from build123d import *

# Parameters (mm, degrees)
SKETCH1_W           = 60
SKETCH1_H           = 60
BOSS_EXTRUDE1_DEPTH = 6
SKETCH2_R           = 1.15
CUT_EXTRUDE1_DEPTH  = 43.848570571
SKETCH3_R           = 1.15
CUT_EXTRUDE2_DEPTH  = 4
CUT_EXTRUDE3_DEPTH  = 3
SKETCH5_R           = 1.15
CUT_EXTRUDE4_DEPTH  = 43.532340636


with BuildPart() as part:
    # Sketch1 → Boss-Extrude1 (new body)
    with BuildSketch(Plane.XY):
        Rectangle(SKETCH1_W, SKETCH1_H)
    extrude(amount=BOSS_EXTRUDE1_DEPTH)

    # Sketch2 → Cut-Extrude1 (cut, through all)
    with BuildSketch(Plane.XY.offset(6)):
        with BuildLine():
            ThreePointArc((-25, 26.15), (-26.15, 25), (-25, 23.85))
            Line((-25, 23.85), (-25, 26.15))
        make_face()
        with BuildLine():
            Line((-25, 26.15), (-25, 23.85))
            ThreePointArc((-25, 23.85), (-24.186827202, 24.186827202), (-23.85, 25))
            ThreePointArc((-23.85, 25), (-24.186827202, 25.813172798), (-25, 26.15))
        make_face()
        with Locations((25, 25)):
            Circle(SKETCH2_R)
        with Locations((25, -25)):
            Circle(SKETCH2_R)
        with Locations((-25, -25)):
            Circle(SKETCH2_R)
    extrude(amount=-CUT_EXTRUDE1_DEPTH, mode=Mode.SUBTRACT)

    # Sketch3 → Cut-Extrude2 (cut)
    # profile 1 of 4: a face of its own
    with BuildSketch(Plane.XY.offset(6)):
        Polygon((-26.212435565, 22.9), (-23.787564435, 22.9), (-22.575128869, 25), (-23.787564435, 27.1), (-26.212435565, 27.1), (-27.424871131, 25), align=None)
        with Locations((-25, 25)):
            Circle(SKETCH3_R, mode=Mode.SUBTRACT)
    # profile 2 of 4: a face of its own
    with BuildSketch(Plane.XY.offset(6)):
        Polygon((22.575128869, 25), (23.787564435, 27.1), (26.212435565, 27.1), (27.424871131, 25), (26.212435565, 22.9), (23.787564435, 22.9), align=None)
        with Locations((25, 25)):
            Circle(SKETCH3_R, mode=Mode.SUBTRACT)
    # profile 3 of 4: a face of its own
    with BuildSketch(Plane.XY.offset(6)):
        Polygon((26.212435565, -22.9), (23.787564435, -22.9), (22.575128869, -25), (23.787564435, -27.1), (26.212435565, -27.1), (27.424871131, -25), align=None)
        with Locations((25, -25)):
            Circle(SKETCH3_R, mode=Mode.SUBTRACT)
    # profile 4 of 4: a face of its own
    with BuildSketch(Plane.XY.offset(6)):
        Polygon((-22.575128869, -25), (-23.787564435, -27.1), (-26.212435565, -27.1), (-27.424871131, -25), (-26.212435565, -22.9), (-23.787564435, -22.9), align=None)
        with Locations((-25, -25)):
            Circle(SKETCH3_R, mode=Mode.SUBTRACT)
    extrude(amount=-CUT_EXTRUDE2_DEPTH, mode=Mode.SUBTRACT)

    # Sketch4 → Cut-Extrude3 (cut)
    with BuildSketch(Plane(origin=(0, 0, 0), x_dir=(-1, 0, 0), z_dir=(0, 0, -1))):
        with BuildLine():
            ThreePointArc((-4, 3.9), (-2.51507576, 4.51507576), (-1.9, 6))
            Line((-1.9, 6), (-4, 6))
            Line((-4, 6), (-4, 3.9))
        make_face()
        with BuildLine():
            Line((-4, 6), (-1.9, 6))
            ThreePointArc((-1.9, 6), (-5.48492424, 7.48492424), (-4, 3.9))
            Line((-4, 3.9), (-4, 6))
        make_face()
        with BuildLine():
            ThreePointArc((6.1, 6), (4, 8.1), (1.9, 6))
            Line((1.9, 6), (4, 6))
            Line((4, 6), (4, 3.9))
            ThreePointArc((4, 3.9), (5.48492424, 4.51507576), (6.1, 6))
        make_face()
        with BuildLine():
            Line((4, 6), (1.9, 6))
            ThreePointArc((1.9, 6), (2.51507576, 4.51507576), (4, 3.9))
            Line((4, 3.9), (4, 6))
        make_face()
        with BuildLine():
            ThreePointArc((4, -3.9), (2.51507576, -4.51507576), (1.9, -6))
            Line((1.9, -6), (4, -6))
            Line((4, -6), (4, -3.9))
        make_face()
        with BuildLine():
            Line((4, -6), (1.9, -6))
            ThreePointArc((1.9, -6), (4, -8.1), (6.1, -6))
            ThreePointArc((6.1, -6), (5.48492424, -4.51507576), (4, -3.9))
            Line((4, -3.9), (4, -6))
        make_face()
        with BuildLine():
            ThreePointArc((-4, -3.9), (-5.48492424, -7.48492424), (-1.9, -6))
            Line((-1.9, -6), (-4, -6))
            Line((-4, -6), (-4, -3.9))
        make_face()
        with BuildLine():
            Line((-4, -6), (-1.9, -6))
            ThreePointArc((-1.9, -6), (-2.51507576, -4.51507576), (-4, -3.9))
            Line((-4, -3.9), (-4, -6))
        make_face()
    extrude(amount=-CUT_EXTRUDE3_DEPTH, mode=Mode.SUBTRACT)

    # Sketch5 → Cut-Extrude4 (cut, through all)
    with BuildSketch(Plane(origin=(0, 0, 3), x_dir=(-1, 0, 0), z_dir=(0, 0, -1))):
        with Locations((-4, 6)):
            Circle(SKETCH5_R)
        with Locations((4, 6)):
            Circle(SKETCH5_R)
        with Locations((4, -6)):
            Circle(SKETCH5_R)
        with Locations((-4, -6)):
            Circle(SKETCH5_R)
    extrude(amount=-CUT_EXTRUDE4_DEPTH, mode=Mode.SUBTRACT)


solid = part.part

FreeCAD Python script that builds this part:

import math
import FreeCAD as App
import Part
import Sketcher

V = App.Vector
Q = App.Units.Quantity

doc = App.newDocument("Part")
body = doc.addObject("PartDesign::Body", "Body")

sketch1 = body.newObject("Sketcher::SketchObject", "Sketch")
sketch1.AttachmentSupport = (doc.getObject("XY_Plane"), [""])
sketch1.MapMode = "FlatFace"
sketch1.addGeometry(Part.LineSegment(V(-30, 30, 0), V(-30, -30, 0)), False)
sketch1.addGeometry(Part.LineSegment(V(-30, -30, 0), V(30, -30, 0)), False)
sketch1.addGeometry(Part.LineSegment(V(30, -30, 0), V(30, 30, 0)), False)
sketch1.addGeometry(Part.LineSegment(V(30, 30, 0), V(-30, 30, 0)), False)
sketch1.addConstraint(Sketcher.Constraint("Coincident", 0, 2, 1, 1))
sketch1.addConstraint(Sketcher.Constraint("Coincident", 1, 2, 2, 1))
sketch1.addConstraint(Sketcher.Constraint("Coincident", 2, 2, 3, 1))
sketch1.addConstraint(Sketcher.Constraint("Coincident", 3, 2, 0, 1))
sketch1.addConstraint(Sketcher.Constraint("Vertical", 0))
sketch1.addConstraint(Sketcher.Constraint("Horizontal", 1))
sketch1.addConstraint(Sketcher.Constraint("Vertical", 2))
sketch1.addConstraint(Sketcher.Constraint("Horizontal", 3))
sketch1.addConstraint(Sketcher.Constraint("Symmetric", 0, 2, 2, 2, -1, 1))
sketch1.addConstraint(Sketcher.Constraint("Equal", 3, 0))
sketch1.addConstraint(Sketcher.Constraint("DistanceX", 1, 1, 1, 2, Q("60 mm")))
pad1 = body.newObject("PartDesign::Pad", "Pad")
pad1.Profile = sketch1
pad1.Length = 6

sketch2 = body.newObject("Sketcher::SketchObject", "Sketch001")
sketch2.AttachmentSupport = (doc.getObject("XY_Plane"), [""])
sketch2.MapMode = "FlatFace"
sketch2.AttachmentOffset = App.Placement(V(0, 0, 6), App.Rotation())
sketch2.addGeometry(Part.ArcOfCircle(Part.Circle(V(-25, 25, 0), V(0, 0, 1), 1.15), math.radians(90), math.radians(270)), False)
sketch2.addGeometry(Part.ArcOfCircle(Part.Circle(V(-25, 25, 0), V(0, 0, 1), 1.15), math.radians(-90), math.radians(0)), False)
sketch2.addGeometry(Part.ArcOfCircle(Part.Circle(V(-25, 25, 0), V(0, 0, 1), 1.15), math.radians(0), math.radians(90)), False)
sketch2.addGeometry(Part.Circle(V(25, 25, 0), V(0, 0, 1), 1.15), False)
sketch2.addGeometry(Part.Circle(V(25, -25, 0), V(0, 0, 1), 1.15), False)
sketch2.addGeometry(Part.Circle(V(-25, -25, 0), V(0, 0, 1), 1.15), False)
sketch2.addConstraint(Sketcher.Constraint("Tangent", 0, 2, 1, 1))
sketch2.addConstraint(Sketcher.Constraint("Tangent", 1, 2, 2, 1))
sketch2.addConstraint(Sketcher.Constraint("Tangent", 2, 2, 0, 1))
sketch2.addConstraint(Sketcher.Constraint("Equal", 2, 3))
sketch2.addConstraint(Sketcher.Constraint("Equal", 3, 4))
sketch2.addConstraint(Sketcher.Constraint("Equal", 4, 5))
sketch2.addConstraint(Sketcher.Constraint("Symmetric", 0, 3, 4, 3, -1, 1))
sketch2.addConstraint(Sketcher.Constraint("Symmetric", 3, 3, 5, 3, -1, 1))
sketch2.addConstraint(Sketcher.Constraint("Symmetric", 0, 3, 3, 3, -2))
sketch2.addConstraint(Sketcher.Constraint("Horizontal", 3, 3, 1, 2))
sketch2.addConstraint(Sketcher.Constraint("Vertical", 5, 3, 0, 2))
sketch2.addConstraint(Sketcher.Constraint("Vertical", 0, 2, 2, 2))
sketch2.addConstraint(Sketcher.Constraint("Diameter", 3, Q("2.3 mm")))
sketch2.addConstraint(Sketcher.Constraint("DistanceX", 0, 3, -1, 1, Q("25 mm")))
sketch2.addConstraint(Sketcher.Constraint("DistanceY", -1, 1, 0, 3, Q("25 mm")))
pocket1 = body.newObject("PartDesign::Pocket", "Pocket")
pocket1.Profile = sketch2
pocket1.Type = "ThroughAll"

sketch3 = body.newObject("Sketcher::SketchObject", "Sketch002")
sketch3.AttachmentSupport = (doc.getObject("XY_Plane"), [""])
sketch3.MapMode = "FlatFace"
sketch3.AttachmentOffset = App.Placement(V(0, 0, 6), App.Rotation())
sketch3.addGeometry(Part.LineSegment(V(-26.212436, 22.9, 0), V(-23.787564, 22.9, 0)), False)
sketch3.addGeometry(Part.LineSegment(V(-23.787564, 22.9, 0), V(-22.575129, 25, 0)), False)
sketch3.addGeometry(Part.LineSegment(V(-22.575129, 25, 0), V(-23.787564, 27.1, 0)), False)
sketch3.addGeometry(Part.LineSegment(V(-23.787564, 27.1, 0), V(-26.212436, 27.1, 0)), False)
sketch3.addGeometry(Part.LineSegment(V(-26.212436, 27.1, 0), V(-27.424871, 25, 0)), False)
sketch3.addGeometry(Part.LineSegment(V(-27.424871, 25, 0), V(-26.212436, 22.9, 0)), False)
sketch3.addGeometry(Part.Circle(V(-25, 25, 0), V(0, 0, 1), 1.15), False)
sketch3.addGeometry(Part.LineSegment(V(23.787564, 27.1, 0), V(22.575129, 25, 0)), False)
sketch3.addGeometry(Part.LineSegment(V(22.575129, 25, 0), V(23.787564, 22.9, 0)), False)
sketch3.addGeometry(Part.LineSegment(V(23.787564, 22.9, 0), V(26.212436, 22.9, 0)), False)
sketch3.addGeometry(Part.LineSegment(V(26.212436, 22.9, 0), V(27.424871, 25, 0)), False)
sketch3.addGeometry(Part.LineSegment(V(27.424871, 25, 0), V(26.212436, 27.1, 0)), False)
sketch3.addGeometry(Part.LineSegment(V(26.212436, 27.1, 0), V(23.787564, 27.1, 0)), False)
sketch3.addGeometry(Part.Circle(V(25, 25, 0), V(0, 0, 1), 1.15), False)
sketch3.addGeometry(Part.LineSegment(V(26.212436, -22.9, 0), V(23.787564, -22.9, 0)), False)
sketch3.addGeometry(Part.LineSegment(V(23.787564, -22.9, 0), V(22.575129, -25, 0)), False)
sketch3.addGeometry(Part.LineSegment(V(22.575129, -25, 0), V(23.787564, -27.1, 0)), False)
sketch3.addGeometry(Part.LineSegment(V(23.787564, -27.1, 0), V(26.212436, -27.1, 0)), False)
sketch3.addGeometry(Part.LineSegment(V(26.212436, -27.1, 0), V(27.424871, -25, 0)), False)
sketch3.addGeometry(Part.LineSegment(V(27.424871, -25, 0), V(26.212436, -22.9, 0)), False)
sketch3.addGeometry(Part.Circle(V(25, -25, 0), V(0, 0, 1), 1.15), False)
sketch3.addGeometry(Part.LineSegment(V(-23.787564, -27.1, 0), V(-22.575129, -25, 0)), False)
sketch3.addGeometry(Part.LineSegment(V(-22.575129, -25, 0), V(-23.787564, -22.9, 0)), False)
sketch3.addGeometry(Part.LineSegment(V(-23.787564, -22.9, 0), V(-26.212436, -22.9, 0)), False)
sketch3.addGeometry(Part.LineSegment(V(-26.212436, -22.9, 0), V(-27.424871, -25, 0)), False)
sketch3.addGeometry(Part.LineSegment(V(-27.424871, -25, 0), V(-26.212436, -27.1, 0)), False)
sketch3.addGeometry(Part.LineSegment(V(-26.212436, -27.1, 0), V(-23.787564, -27.1, 0)), False)
sketch3.addGeometry(Part.Circle(V(-25, -25, 0), V(0, 0, 1), 1.15), False)
sketch3.addConstraint(Sketcher.Constraint("Coincident", 0, 2, 1, 1))
sketch3.addConstraint(Sketcher.Constraint("Coincident", 1, 2, 2, 1))
sketch3.addConstraint(Sketcher.Constraint("Coincident", 2, 2, 3, 1))
sketch3.addConstraint(Sketcher.Constraint("Coincident", 3, 2, 4, 1))
sketch3.addConstraint(Sketcher.Constraint("Coincident", 4, 2, 5, 1))
sketch3.addConstraint(Sketcher.Constraint("Coincident", 5, 2, 0, 1))
sketch3.addConstraint(Sketcher.Constraint("Coincident", 7, 2, 8, 1))
sketch3.addConstraint(Sketcher.Constraint("Coincident", 8, 2, 9, 1))
sketch3.addConstraint(Sketcher.Constraint("Coincident", 9, 2, 10, 1))
sketch3.addConstraint(Sketcher.Constraint("Coincident", 10, 2, 11, 1))
sketch3.addConstraint(Sketcher.Constraint("Coincident", 11, 2, 12, 1))
sketch3.addConstraint(Sketcher.Constraint("Coincident", 12, 2, 7, 1))
sketch3.addConstraint(Sketcher.Constraint("Coincident", 14, 2, 15, 1))
sketch3.addConstraint(Sketcher.Constraint("Coincident", 15, 2, 16, 1))
sketch3.addConstraint(Sketcher.Constraint("Coincident", 16, 2, 17, 1))
sketch3.addConstraint(Sketcher.Constraint("Coincident", 17, 2, 18, 1))
sketch3.addConstraint(Sketcher.Constraint("Coincident", 18, 2, 19, 1))
sketch3.addConstraint(Sketcher.Constraint("Coincident", 19, 2, 14, 1))
sketch3.addConstraint(Sketcher.Constraint("Coincident", 21, 2, 22, 1))
sketch3.addConstraint(Sketcher.Constraint("Coincident", 22, 2, 23, 1))
sketch3.addConstraint(Sketcher.Constraint("Coincident", 23, 2, 24, 1))
sketch3.addConstraint(Sketcher.Constraint("Coincident", 24, 2, 25, 1))
sketch3.addConstraint(Sketcher.Constraint("Coincident", 25, 2, 26, 1))
sketch3.addConstraint(Sketcher.Constraint("Coincident", 26, 2, 21, 1))
sketch3.addConstraint(Sketcher.Constraint("Horizontal", 0))
sketch3.addConstraint(Sketcher.Constraint("Horizontal", 3))
sketch3.addConstraint(Sketcher.Constraint("Horizontal", 9))
sketch3.addConstraint(Sketcher.Constraint("Horizontal", 12))
sketch3.addConstraint(Sketcher.Constraint("Horizontal", 14))
sketch3.addConstraint(Sketcher.Constraint("Horizontal", 17))
sketch3.addConstraint(Sketcher.Constraint("Horizontal", 23))
sketch3.addConstraint(Sketcher.Constraint("Horizontal", 26))
sketch3.addConstraint(Sketcher.Constraint("Equal", 6, 13))
sketch3.addConstraint(Sketcher.Constraint("Equal", 13, 20))
sketch3.addConstraint(Sketcher.Constraint("Equal", 20, 27))
sketch3.addConstraint(Sketcher.Constraint("Symmetric", 6, 3, 20, 3, -1, 1))
sketch3.addConstraint(Sketcher.Constraint("Symmetric", 13, 3, 27, 3, -1, 1))
sketch3.addConstraint(Sketcher.Constraint("Symmetric", 0, 2, 14, 2, -1, 1))
sketch3.addConstraint(Sketcher.Constraint("Symmetric", 1, 2, 15, 2, -1, 1))
sketch3.addConstraint(Sketcher.Constraint("Symmetric", 2, 2, 16, 2, -1, 1))
sketch3.addConstraint(Sketcher.Constraint("Symmetric", 4, 2, 18, 2, -1, 1))
sketch3.addConstraint(Sketcher.Constraint("Symmetric", 7, 2, 21, 2, -1, 1))
sketch3.addConstraint(Sketcher.Constraint("Symmetric", 8, 2, 22, 2, -1, 1))
sketch3.addConstraint(Sketcher.Constraint("Symmetric", 10, 2, 24, 2, -1, 1))
sketch3.addConstraint(Sketcher.Constraint("Symmetric", 11, 2, 25, 2, -1, 1))
sketch3.addConstraint(Sketcher.Constraint("Symmetric", 6, 3, 13, 3, -2))
sketch3.addConstraint(Sketcher.Constraint("Symmetric", 1, 2, 7, 2, -2))
sketch3.addConstraint(Sketcher.Constraint("Symmetric", 0, 2, 8, 2, -2))
sketch3.addConstraint(Sketcher.Constraint("Symmetric", 4, 2, 10, 2, -2))
sketch3.addConstraint(Sketcher.Constraint("Symmetric", 3, 2, 11, 2, -2))
sketch3.addConstraint(Sketcher.Constraint("Parallel", 1, 4))
sketch3.addConstraint(Sketcher.Constraint("Parallel", 2, 5))
sketch3.addConstraint(Sketcher.Constraint("Parallel", 4, 7))
sketch3.addConstraint(Sketcher.Constraint("Parallel", 5, 8))
sketch3.addConstraint(Sketcher.Constraint("Parallel", 7, 10))
sketch3.addConstraint(Sketcher.Constraint("Parallel", 15, 18))
sketch3.addConstraint(Sketcher.Constraint("Parallel", 16, 19))
sketch3.addConstraint(Sketcher.Constraint("Parallel", 18, 21))
sketch3.addConstraint(Sketcher.Constraint("Parallel", 21, 24))
sketch3.addConstraint(Sketcher.Constraint("Horizontal", 13, 3, 1, 2))
sketch3.addConstraint(Sketcher.Constraint("Horizontal", 1, 2, 4, 2))
sketch3.addConstraint(Sketcher.Constraint("Vertical", 0, 2, 2, 2))
sketch3.addConstraint(Sketcher.Constraint("Diameter", 6, Q("2.3 mm")))
sketch3.addConstraint(Sketcher.Constraint("Angle", 1, Q("60 deg")))
sketch3.addConstraint(Sketcher.Constraint("DistanceX", 6, 3, -1, 1, Q("25 mm")))
sketch3.addConstraint(Sketcher.Constraint("DistanceY", -1, 1, 6, 3, Q("25 mm")))
sketch3.addConstraint(Sketcher.Constraint("DistanceX", 1, 2, 10, 2, Q("50 mm")))
sketch3.addConstraint(Sketcher.Constraint("DistanceY", -1, 1, 0, 2, Q("22.9 mm")))
sketch3.addConstraint(Sketcher.Constraint("DistanceX", 0, 1, 0, 2, Q("2.424871 mm")))
pocket2 = body.newObject("PartDesign::Pocket", "Pocket001")
pocket2.Profile = sketch3
pocket2.Length = 4

sketch4 = body.newObject("Sketcher::SketchObject", "Sketch003")
sketch4.AttachmentSupport = (doc.getObject("XY_Plane"), [""])
sketch4.MapMode = "FlatFace"
sketch4.addGeometry(Part.ArcOfCircle(Part.Circle(V(4, 6, 0), V(0, 0, 1), 2.1), math.radians(-180), math.radians(-90)), False)
sketch4.addGeometry(Part.ArcOfCircle(Part.Circle(V(4, 6, 0), V(0, 0, 1), 2.1), math.radians(-90), math.radians(180)), False)
sketch4.addGeometry(Part.ArcOfCircle(Part.Circle(V(-4, 6, 0), V(0, 0, 1), 2.1), math.radians(0), math.radians(180)), False)
sketch4.addGeometry(Part.ArcOfCircle(Part.Circle(V(-4, 6, 0), V(0, 0, 1), 2.1), math.radians(-90), math.radians(0)), False)
sketch4.addGeometry(Part.ArcOfCircle(Part.Circle(V(-4, 6, 0), V(0, 0, 1), 2.1), math.radians(-180), math.radians(-90)), False)
sketch4.addGeometry(Part.ArcOfCircle(Part.Circle(V(-4, -6, 0), V(0, 0, 1), 2.1), math.radians(0), math.radians(90)), False)
sketch4.addGeometry(Part.ArcOfCircle(Part.Circle(V(-4, -6, 0), V(0, 0, 1), 2.1), math.radians(180), math.radians(360)), False)
sketch4.addGeometry(Part.ArcOfCircle(Part.Circle(V(-4, -6, 0), V(0, 0, 1), 2.1), math.radians(90), math.radians(180)), False)
sketch4.addGeometry(Part.ArcOfCircle(Part.Circle(V(4, -6, 0), V(0, 0, 1), 2.1), math.radians(180), math.radians(450)), False)
sketch4.addGeometry(Part.ArcOfCircle(Part.Circle(V(4, -6, 0), V(0, 0, 1), 2.1), math.radians(90), math.radians(180)), False)
sketch4.addConstraint(Sketcher.Constraint("Tangent", 0, 1, 1, 2))
sketch4.addConstraint(Sketcher.Constraint("Coincident", 1, 1, 0, 2))
sketch4.addConstraint(Sketcher.Constraint("Tangent", 2, 1, 3, 2))
sketch4.addConstraint(Sketcher.Constraint("Tangent", 3, 1, 4, 2))
sketch4.addConstraint(Sketcher.Constraint("Tangent", 4, 1, 2, 2))
sketch4.addConstraint(Sketcher.Constraint("Tangent", 5, 1, 6, 2))
sketch4.addConstraint(Sketcher.Constraint("Tangent", 6, 1, 7, 2))
sketch4.addConstraint(Sketcher.Constraint("Tangent", 7, 1, 5, 2))
sketch4.addConstraint(Sketcher.Constraint("Tangent", 8, 1, 9, 2))
sketch4.addConstraint(Sketcher.Constraint("Coincident", 9, 1, 8, 2))
sketch4.addConstraint(Sketcher.Constraint("Equal", 1, 2))
sketch4.addConstraint(Sketcher.Constraint("Equal", 4, 5))
sketch4.addConstraint(Sketcher.Constraint("Equal", 7, 8))
sketch4.addConstraint(Sketcher.Constraint("Symmetric", 0, 3, 5, 3, -1, 1))
sketch4.addConstraint(Sketcher.Constraint("Symmetric", 2, 3, 8, 3, -1, 1))
sketch4.addConstraint(Sketcher.Constraint("Symmetric", 0, 3, 2, 3, -2))
sketch4.addConstraint(Sketcher.Constraint("Horizontal", 4, 3, 0, 1))
sketch4.addConstraint(Sketcher.Constraint("Horizontal", 0, 1, 2, 1))
sketch4.addConstraint(Sketcher.Constraint("Horizontal", 2, 1, 4, 1))
sketch4.addConstraint(Sketcher.Constraint("Horizontal", 9, 3, 5, 1))
sketch4.addConstraint(Sketcher.Constraint("Horizontal", 5, 1, 6, 1))
sketch4.addConstraint(Sketcher.Constraint("Horizontal", 6, 1, 8, 1))
sketch4.addConstraint(Sketcher.Constraint("Vertical", 9, 3, 1, 1))
sketch4.addConstraint(Sketcher.Constraint("Vertical", 7, 3, 3, 1))
sketch4.addConstraint(Sketcher.Constraint("Vertical", 3, 1, 7, 1))
sketch4.addConstraint(Sketcher.Constraint("Vertical", 1, 1, 9, 1))
sketch4.addConstraint(Sketcher.Constraint("Radius", 0, Q("2.1 mm")))
sketch4.addConstraint(Sketcher.Constraint("DistanceX", -1, 1, 0, 3, Q("4 mm")))
sketch4.addConstraint(Sketcher.Constraint("DistanceY", -1, 1, 0, 3, Q("6 mm")))
pocket3 = body.newObject("PartDesign::Pocket", "Pocket002")
pocket3.Profile = sketch4
pocket3.Length = 3
pocket3.Reversed = True

sketch5 = body.newObject("Sketcher::SketchObject", "Sketch004")
sketch5.AttachmentSupport = (doc.getObject("XY_Plane"), [""])
sketch5.MapMode = "FlatFace"
sketch5.AttachmentOffset = App.Placement(V(0, 0, 3), App.Rotation())
sketch5.addGeometry(Part.Circle(V(4, 6, 0), V(0, 0, 1), 1.15), False)
sketch5.addGeometry(Part.Circle(V(-4, 6, 0), V(0, 0, 1), 1.15), False)
sketch5.addGeometry(Part.Circle(V(-4, -6, 0), V(0, 0, 1), 1.15), False)
sketch5.addGeometry(Part.Circle(V(4, -6, 0), V(0, 0, 1), 1.15), False)
sketch5.addConstraint(Sketcher.Constraint("Equal", 0, 1))
sketch5.addConstraint(Sketcher.Constraint("Equal", 1, 2))
sketch5.addConstraint(Sketcher.Constraint("Equal", 2, 3))
sketch5.addConstraint(Sketcher.Constraint("Symmetric", 0, 3, 2, 3, -1, 1))
sketch5.addConstraint(Sketcher.Constraint("Symmetric", 1, 3, 3, 3, -1, 1))
sketch5.addConstraint(Sketcher.Constraint("Symmetric", 0, 3, 1, 3, -2))
sketch5.addConstraint(Sketcher.Constraint("Diameter", 0, Q("2.3 mm")))
sketch5.addConstraint(Sketcher.Constraint("DistanceX", -1, 1, 0, 3, Q("4 mm")))
sketch5.addConstraint(Sketcher.Constraint("DistanceY", -1, 1, 0, 3, Q("6 mm")))
pocket4 = body.newObject("PartDesign::Pocket", "Pocket003")
pocket4.Profile = sketch5
pocket4.Type = "ThroughAll"
pocket4.Reversed = True

doc.recompute()
